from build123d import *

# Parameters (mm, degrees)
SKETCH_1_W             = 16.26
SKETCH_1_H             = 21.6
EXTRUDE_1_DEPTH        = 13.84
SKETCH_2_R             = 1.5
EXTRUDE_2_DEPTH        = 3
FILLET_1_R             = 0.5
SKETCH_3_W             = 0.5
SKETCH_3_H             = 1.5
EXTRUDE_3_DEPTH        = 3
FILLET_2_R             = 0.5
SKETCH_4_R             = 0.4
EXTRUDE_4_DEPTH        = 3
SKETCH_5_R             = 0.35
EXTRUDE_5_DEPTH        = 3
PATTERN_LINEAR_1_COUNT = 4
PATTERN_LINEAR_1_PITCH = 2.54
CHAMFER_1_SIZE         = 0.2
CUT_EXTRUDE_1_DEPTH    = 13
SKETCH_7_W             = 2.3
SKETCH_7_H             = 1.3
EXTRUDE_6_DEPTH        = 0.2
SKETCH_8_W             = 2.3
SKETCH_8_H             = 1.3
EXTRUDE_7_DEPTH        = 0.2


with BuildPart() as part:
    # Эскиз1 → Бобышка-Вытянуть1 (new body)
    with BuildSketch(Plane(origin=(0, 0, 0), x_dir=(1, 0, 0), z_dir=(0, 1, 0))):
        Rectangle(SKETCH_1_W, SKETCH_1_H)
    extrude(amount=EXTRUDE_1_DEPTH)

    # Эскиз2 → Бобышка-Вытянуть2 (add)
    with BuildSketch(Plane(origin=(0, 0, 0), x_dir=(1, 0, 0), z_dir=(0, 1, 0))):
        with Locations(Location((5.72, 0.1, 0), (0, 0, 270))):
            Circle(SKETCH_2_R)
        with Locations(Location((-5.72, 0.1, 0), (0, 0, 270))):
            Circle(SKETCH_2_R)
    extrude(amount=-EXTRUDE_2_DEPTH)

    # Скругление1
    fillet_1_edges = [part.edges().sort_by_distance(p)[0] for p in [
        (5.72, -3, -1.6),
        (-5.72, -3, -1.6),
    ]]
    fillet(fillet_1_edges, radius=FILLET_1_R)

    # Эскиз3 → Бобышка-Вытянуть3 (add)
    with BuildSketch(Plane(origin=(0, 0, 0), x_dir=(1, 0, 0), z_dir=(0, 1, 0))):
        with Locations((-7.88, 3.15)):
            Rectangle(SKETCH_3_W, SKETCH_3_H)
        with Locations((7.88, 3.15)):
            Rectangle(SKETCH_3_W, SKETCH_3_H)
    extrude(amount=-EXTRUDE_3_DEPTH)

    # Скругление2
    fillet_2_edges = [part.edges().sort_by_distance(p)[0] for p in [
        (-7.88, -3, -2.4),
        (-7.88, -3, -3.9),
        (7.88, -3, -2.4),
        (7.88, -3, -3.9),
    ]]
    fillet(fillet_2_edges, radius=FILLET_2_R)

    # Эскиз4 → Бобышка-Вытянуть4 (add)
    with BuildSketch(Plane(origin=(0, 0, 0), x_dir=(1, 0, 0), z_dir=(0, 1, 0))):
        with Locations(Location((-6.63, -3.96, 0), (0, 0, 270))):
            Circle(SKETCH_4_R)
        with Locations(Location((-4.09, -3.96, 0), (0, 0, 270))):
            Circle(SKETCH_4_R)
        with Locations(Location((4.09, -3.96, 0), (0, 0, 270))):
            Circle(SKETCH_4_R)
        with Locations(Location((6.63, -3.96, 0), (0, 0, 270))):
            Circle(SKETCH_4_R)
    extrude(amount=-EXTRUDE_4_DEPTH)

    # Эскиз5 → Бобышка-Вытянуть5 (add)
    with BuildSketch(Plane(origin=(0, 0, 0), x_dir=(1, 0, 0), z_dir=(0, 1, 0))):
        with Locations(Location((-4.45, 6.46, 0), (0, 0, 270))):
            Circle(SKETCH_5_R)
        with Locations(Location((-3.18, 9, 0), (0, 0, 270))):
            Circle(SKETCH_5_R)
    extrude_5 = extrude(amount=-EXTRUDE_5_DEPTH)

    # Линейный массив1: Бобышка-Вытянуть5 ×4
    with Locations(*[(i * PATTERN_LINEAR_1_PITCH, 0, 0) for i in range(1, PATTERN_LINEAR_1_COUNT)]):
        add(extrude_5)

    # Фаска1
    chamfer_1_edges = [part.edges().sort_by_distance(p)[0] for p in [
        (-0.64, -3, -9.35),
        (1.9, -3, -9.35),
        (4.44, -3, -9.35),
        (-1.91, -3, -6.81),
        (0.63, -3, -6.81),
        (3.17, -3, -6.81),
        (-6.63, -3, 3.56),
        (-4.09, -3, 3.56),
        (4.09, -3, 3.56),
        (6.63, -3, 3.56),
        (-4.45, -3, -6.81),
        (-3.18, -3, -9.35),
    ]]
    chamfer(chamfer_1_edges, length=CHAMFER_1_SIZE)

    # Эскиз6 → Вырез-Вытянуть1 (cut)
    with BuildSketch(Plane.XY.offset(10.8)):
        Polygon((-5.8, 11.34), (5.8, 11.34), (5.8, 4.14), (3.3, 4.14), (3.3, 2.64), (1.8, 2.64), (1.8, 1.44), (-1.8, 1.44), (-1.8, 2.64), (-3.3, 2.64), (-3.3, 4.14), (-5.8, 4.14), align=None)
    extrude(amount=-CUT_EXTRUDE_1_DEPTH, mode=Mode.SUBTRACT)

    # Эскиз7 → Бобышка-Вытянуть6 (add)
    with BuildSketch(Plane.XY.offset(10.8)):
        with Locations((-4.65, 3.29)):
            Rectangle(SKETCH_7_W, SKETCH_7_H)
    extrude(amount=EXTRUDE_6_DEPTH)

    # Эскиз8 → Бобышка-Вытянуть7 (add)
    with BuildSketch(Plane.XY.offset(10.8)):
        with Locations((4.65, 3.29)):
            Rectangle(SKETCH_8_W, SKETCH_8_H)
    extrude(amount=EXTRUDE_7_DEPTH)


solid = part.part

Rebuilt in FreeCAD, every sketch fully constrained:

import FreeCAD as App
import Part
import Sketcher
from FreeCAD import Vector


def edges_at(feature, points):
    """Names of the edges that pass closest to the given points."""
    edges = feature.Shape.Edges
    near = lambda p: min(range(len(edges)), key=lambda i: edges[i].distToShape(Part.Vertex(*p))[0])
    return sorted({f"Edge{near(p) + 1}" for p in points})

doc = App.newDocument("Part")
body = doc.addObject("PartDesign::Body", "Body")

# Sketch on XZ plane
sketch1 = body.newObject("Sketcher::SketchObject", "Sketch")
sketch1.AttachmentSupport = (doc.getObject("XZ_Plane"), [""])
sketch1.MapMode = "FlatFace"
sketch1.addGeometry([
    Part.LineSegment(Vector(-8, -11, 0), Vector(-8, 11, 0)),
    Part.LineSegment(Vector(-8, 11, 0), Vector(8, 11, 0)),
    Part.LineSegment(Vector(8, 11, 0), Vector(8, -11, 0)),
    Part.LineSegment(Vector(8, -11, 0), Vector(-8, -11, 0)),
], False)
sketch1.addConstraint([
    Sketcher.Constraint("Coincident", 0, 2, 1, 1),
    Sketcher.Constraint("Coincident", 1, 2, 2, 1),
    Sketcher.Constraint("Coincident", 2, 2, 3, 1),
    Sketcher.Constraint("Coincident", 3, 2, 0, 1),
    Sketcher.Constraint("Vertical", 0),
    Sketcher.Constraint("Horizontal", 1),
    Sketcher.Constraint("Vertical", 2),
    Sketcher.Constraint("Horizontal", 3),
    Sketcher.Constraint("Symmetric", 0, 2, 2, 2, -1, 1),
    Sketcher.Constraint("DistanceY", 0, 1, 0, 2, 21.6),
    Sketcher.Constraint("DistanceX", 1, 1, 1, 2, 16.26),
])
pad1 = body.newObject("PartDesign::Pad", "Pad")
pad1.Profile = sketch1
pad1.Length = 13.84
pad1.Reversed = True

# Sketch on XZ plane
sketch2 = body.newObject("Sketcher::SketchObject", "Sketch001")
sketch2.AttachmentSupport = (doc.getObject("XZ_Plane"), [""])
sketch2.MapMode = "FlatFace"
sketch2.addGeometry([
    Part.Circle(Vector(5.7, -0.1, 0), Vector(0, 0, 1), 1.5),
    Part.Circle(Vector(-5.7, -0.1, 0), Vector(0, 0, 1), 1.5),
], False)
sketch2.addConstraint([
    Sketcher.Constraint("Equal", 0, 1),
    Sketcher.Constraint("Symmetric", 0, 3, 1, 3, -2),
    Sketcher.Constraint("Diameter", 0, 3.0),
    Sketcher.Constraint("DistanceY", 0, 3, -1, 1, 0.1),
    Sketcher.Constraint("DistanceX", -1, 1, 0, 3, 5.72),
])
pad2 = body.newObject("PartDesign::Pad", "Pad001")
pad2.Profile = sketch2
pad2.Length = 3
doc.recompute()

fillet = body.newObject("PartDesign::Fillet", "Fillet")
fillet.Base = (pad2, edges_at(pad2, [(5.72, -3, -1.6), (-5.72, -3, -1.6)]))
fillet.Radius = 0.5

# Sketch on XZ plane
sketch3 = body.newObject("Sketcher::SketchObject", "Sketch002")
sketch3.AttachmentSupport = (doc.getObject("XZ_Plane"), [""])
sketch3.MapMode = "FlatFace"
sketch3.addGeometry([
    Part.LineSegment(Vector(-8.1, -3.9, 0), Vector(-8.1, -2.4, 0)),  # 0
    Part.LineSegment(Vector(-8.1, -2.4, 0), Vector(-7.6, -2.4, 0)),  # 1
    Part.LineSegment(Vector(-7.6, -2.4, 0), Vector(-7.6, -3.9, 0)),  # 2
    Part.LineSegment(Vector(-7.6, -3.9, 0), Vector(-8.1, -3.9, 0)),  # 3
    Part.LineSegment(Vector(7.6, -3.9, 0), Vector(7.6, -2.4, 0)),  # 4
    Part.LineSegment(Vector(7.6, -2.4, 0), Vector(8.1, -2.4, 0)),  # 5
    Part.LineSegment(Vector(8.1, -2.4, 0), Vector(8.1, -3.9, 0)),  # 6
    Part.LineSegment(Vector(8.1, -3.9, 0), Vector(7.6, -3.9, 0)),  # 7
], False)
sketch3.addConstraint([
    Sketcher.Constraint("Coincident", 0, 2, 1, 1),
    Sketcher.Constraint("Coincident", 1, 2, 2, 1),
    Sketcher.Constraint("Coincident", 2, 2, 3, 1),
    Sketcher.Constraint("Coincident", 3, 2, 0, 1),
    Sketcher.Constraint("Coincident", 4, 2, 5, 1),
    Sketcher.Constraint("Coincident", 5, 2, 6, 1),
    Sketcher.Constraint("Coincident", 6, 2, 7, 1),
    Sketcher.Constraint("Coincident", 7, 2, 4, 1),
    Sketcher.Constraint("Vertical", 0),
    Sketcher.Constraint("Horizontal", 1),
    Sketcher.Constraint("Vertical", 2),
    Sketcher.Constraint("Horizontal", 3),
    Sketcher.Constraint("Vertical", 4),
    Sketcher.Constraint("Horizontal", 5),
    Sketcher.Constraint("Vertical", 6),
    Sketcher.Constraint("Horizontal", 7),
    Sketcher.Constraint("Symmetric", 1, 2, 4, 2, -2),
    Sketcher.Constraint("Symmetric", 3, 2, 6, 2, -2),
    Sketcher.Constraint("DistanceX", 1, 1, 1, 2, 0.5),
    Sketcher.Constraint("DistanceY", 0, 1, 0, 2, 1.5),
    Sketcher.Constraint("DistanceY", 0, 2, -1, 1, 2.4),
    Sketcher.Constraint("DistanceX", 0, 2, -1, 1, 8.13),
])
pad3 = body.newObject("PartDesign::Pad", "Pad002")
pad3.Profile = sketch3
pad3.Length = 3
doc.recompute()

fillet2 = body.newObject("PartDesign::Fillet", "Fillet001")
fillet2.Base = (pad3, edges_at(pad3, [
    (-7.88, -3, -2.4),
    (-7.88, -3, -3.9),
    (7.88, -3, -2.4),
    (7.88, -3, -3.9),
]))
fillet2.Radius = 0.5

# Sketch on XZ plane
sketch4 = body.newObject("Sketcher::SketchObject", "Sketch003")
sketch4.AttachmentSupport = (doc.getObject("XZ_Plane"), [""])
sketch4.MapMode = "FlatFace"
sketch4.addGeometry([
    Part.Circle(Vector(-6.63, 3.96, 0), Vector(0, 0, 1), 0.4),
    Part.Circle(Vector(-4.09, 3.96, 0), Vector(0, 0, 1), 0.4),
    Part.Circle(Vector(4.09, 3.96, 0), Vector(0, 0, 1), 0.4),
    Part.Circle(Vector(6.63, 3.96, 0), Vector(0, 0, 1), 0.4),
], False)
sketch4.addConstraint([
    Sketcher.Constraint("Equal", 0, 1),
    Sketcher.Constraint("Equal", 1, 2),
    Sketcher.Constraint("Equal", 2, 3),
    Sketcher.Constraint("Symmetric", 1, 3, 2, 3, -2),
    Sketcher.Constraint("Symmetric", 0, 3, 3, 3, -2),
    Sketcher.Constraint("Horizontal", 0, 3, 1, 3),
    Sketcher.Constraint("Diameter", 0, 0.8),
    Sketcher.Constraint("DistanceX", 0, 3, -1, 1, 6.63),
    Sketcher.Constraint("DistanceY", -1, 1, 0, 3, 3.96),
    Sketcher.Constraint("DistanceX", 1, 3, -1, 1, 4.09),
])
pad4 = body.newObject("PartDesign::Pad", "Pad003")
pad4.Profile = sketch4
pad4.Length = 3

# Sketch on XZ plane
sketch5 = body.newObject("Sketcher::SketchObject", "Sketch004")
sketch5.AttachmentSupport = (doc.getObject("XZ_Plane"), [""])
sketch5.MapMode = "FlatFace"
sketch5.addGeometry([
    Part.Circle(Vector(-4.45, -6.46, 0), Vector(0, 0, 1), 0.35),
    Part.Circle(Vector(-3.18, -9, 0), Vector(0, 0, 1), 0.35),
], False)
sketch5.addConstraint([
    Sketcher.Constraint("Equal", 0, 1),
    Sketcher.Constraint("Diameter", 0, 0.7),
    Sketcher.Constraint("DistanceY", 1, 3, -1, 1, 9.0),
    Sketcher.Constraint("DistanceX", 0, 3, -1, 1, 4.45),
    Sketcher.Constraint("DistanceY", 0, 3, -1, 1, 6.46),
    Sketcher.Constraint("DistanceX", 1, 3, -1, 1, 3.18),
])
pad5 = body.newObject("PartDesign::Pad", "Pad004")
pad5.Profile = sketch5
pad5.Length = 3
doc.recompute()

linearpattern = body.newObject("PartDesign::LinearPattern", "LinearPattern")
linearpattern.Originals = [pad5]
linearpattern.Direction = (doc.getObject("X_Axis"), [""])
linearpattern.Mode = "offset"
linearpattern.Offset = 2.54
linearpattern.Occurrences = 4
body.Tip = linearpattern
doc.recompute()

chamfer = body.newObject("PartDesign::Chamfer", "Chamfer")
chamfer.Base = (linearpattern, edges_at(linearpattern, [
    (-0.64, -3, -9.35),
    (1.9, -3, -9.35),
    (4.44, -3, -9.35),
    (-1.91, -3, -6.81),
    (0.63, -3, -6.81),
    (3.17, -3, -6.81),
    (-6.63, -3, 3.56),
    (-4.09, -3, 3.56),
    (4.09, -3, 3.56),
    (6.63, -3, 3.56),
    (-4.45, -3, -6.81),
    (-3.18, -3, -9.35),
]))
chamfer.Size = 0.2

# Sketch on XY plane
sketch6 = body.newObject("Sketcher::SketchObject", "Sketch005")
sketch6.AttachmentSupport = (doc.getObject("XY_Plane"), [""])
sketch6.MapMode = "FlatFace"
sketch6.AttachmentOffset = App.Placement(Vector(0, 0, 10.8), App.Rotation())
sketch6.addGeometry([
    Part.LineSegment(Vector(5.8, 11.3, 0), Vector(-5.8, 11.3, 0)),  # 0
    Part.LineSegment(Vector(-5.8, 11.3, 0), Vector(-5.8, 4.1, 0)),  # 1
    Part.LineSegment(Vector(-5.8, 4.1, 0), Vector(-3.3, 4.1, 0)),  # 2
    Part.LineSegment(Vector(-3.3, 4.1, 0), Vector(-3.3, 2.6, 0)),  # 3
    Part.LineSegment(Vector(-3.3, 2.6, 0), Vector(-1.8, 2.6, 0)),  # 4
    Part.LineSegment(Vector(-1.8, 2.6, 0), Vector(-1.8, 1.4, 0)),  # 5
    Part.LineSegment(Vector(-1.8, 1.4, 0), Vector(1.8, 1.4, 0)),  # 6
    Part.LineSegment(Vector(1.8, 1.4, 0), Vector(1.8, 2.6, 0)),  # 7
    Part.LineSegment(Vector(1.8, 2.6, 0), Vector(3.3, 2.6, 0)),  # 8
    Part.LineSegment(Vector(3.3, 2.6, 0), Vector(3.3, 4.1, 0)),  # 9
    Part.LineSegment(Vector(3.3, 4.1, 0), Vector(5.8, 4.1, 0)),  # 10
    Part.LineSegment(Vector(5.8, 4.1, 0), Vector(5.8, 11.3, 0)),  # 11
], False)
sketch6.addConstraint([
    Sketcher.Constraint("Coincident", 0, 2, 1, 1),
    Sketcher.Constraint("Coincident", 1, 2, 2, 1),
    Sketcher.Constraint("Coincident", 2, 2, 3, 1),
    Sketcher.Constraint("Coincident", 3, 2, 4, 1),
    Sketcher.Constraint("Coincident", 4, 2, 5, 1),
    Sketcher.Constraint("Coincident", 5, 2, 6, 1),
    Sketcher.Constraint("Coincident", 6, 2, 7, 1),
    Sketcher.Constraint("Coincident", 7, 2, 8, 1),
    Sketcher.Constraint("Coincident", 8, 2, 9, 1),
    Sketcher.Constraint("Coincident", 9, 2, 10, 1),
    Sketcher.Constraint("Coincident", 10, 2, 11, 1),
    Sketcher.Constraint("Coincident", 11, 2, 0, 1),
    Sketcher.Constraint("Horizontal", 0),
    Sketcher.Constraint("Vertical", 1),
    Sketcher.Constraint("Horizontal", 2),
    Sketcher.Constraint("Vertical", 3),
    Sketcher.Constraint("Horizontal", 4),
    Sketcher.Constraint("Vertical", 5),
    Sketcher.Constraint("Horizontal", 6),
    Sketcher.Constraint("Vertical", 7),
    Sketcher.Constraint("Horizontal", 8),
    Sketcher.Constraint("Vertical", 9),
    Sketcher.Constraint("Horizontal", 10),
    Sketcher.Constraint("Vertical", 11),
    Sketcher.Constraint("Symmetric", 4, 2, 7, 2, -2),
    Sketcher.Constraint("Symmetric", 2, 2, 9, 2, -2),
    Sketcher.Constraint("Equal", 2, 10),
    Sketcher.Constraint("Equal", 8, 3),
    Sketcher.Constraint("DistanceX", 0, 2, 0, 1, 11.6),
    Sketcher.Constraint("DistanceX", 2, 1, 2, 2, 2.5),
    Sketcher.Constraint("DistanceX", 4, 1, 4, 2, 1.5),
    Sketcher.Constraint("DistanceY", 1, 2, 1, 1, 7.2),
    Sketcher.Constraint("DistanceY", 5, 2, 5, 1, 1.2),
    Sketcher.Constraint("DistanceY", -1, 1, 0, 2, 11.34),
])
pocket1 = body.newObject("PartDesign::Pocket", "Pocket")
pocket1.Profile = sketch6
pocket1.Length = 13

# Sketch on XY plane
sketch7 = body.newObject("Sketcher::SketchObject", "Sketch006")
sketch7.AttachmentSupport = (doc.getObject("XY_Plane"), [""])
sketch7.MapMode = "FlatFace"
sketch7.AttachmentOffset = App.Placement(Vector(0, 0, 10.8), App.Rotation())
sketch7.addGeometry([
    Part.LineSegment(Vector(-5.8, 3.9, 0), Vector(-5.8, 2.6, 0)),
    Part.LineSegment(Vector(-5.8, 2.6, 0), Vector(-3.5, 2.6, 0)),
    Part.LineSegment(Vector(-3.5, 2.6, 0), Vector(-3.5, 3.9, 0)),
    Part.LineSegment(Vector(-3.5, 3.9, 0), Vector(-5.8, 3.9, 0)),
], False)
sketch7.addConstraint([
    Sketcher.Constraint("Coincident", 0, 2, 1, 1),
    Sketcher.Constraint("Coincident", 1, 2, 2, 1),
    Sketcher.Constraint("Coincident", 2, 2, 3, 1),
    Sketcher.Constraint("Coincident", 3, 2, 0, 1),
    Sketcher.Constraint("Vertical", 0),
    Sketcher.Constraint("Horizontal", 1),
    Sketcher.Constraint("Vertical", 2),
    Sketcher.Constraint("Horizontal", 3),
    Sketcher.Constraint("DistanceX", 1, 1, 1, 2, 2.3),
    Sketcher.Constraint("DistanceY", 0, 2, 0, 1, 1.3),
    Sketcher.Constraint("DistanceX", 0, 2, -1, 1, 5.8),
    Sketcher.Constraint("DistanceY", -1, 1, 0, 2, 2.64),
])
pad6 = body.newObject("PartDesign::Pad", "Pad005")
pad6.Profile = sketch7
pad6.Length = 0.2

# Sketch on XY plane
sketch8 = body.newObject("Sketcher::SketchObject", "Sketch007")
sketch8.AttachmentSupport = (doc.getObject("XY_Plane"), [""])
sketch8.MapMode = "FlatFace"
sketch8.AttachmentOffset = App.Placement(Vector(0, 0, 10.8), App.Rotation())
sketch8.addGeometry([
    Part.LineSegment(Vector(3.5, 3.9, 0), Vector(3.5, 2.6, 0)),
    Part.LineSegment(Vector(3.5, 2.6, 0), Vector(5.8, 2.6, 0)),
    Part.LineSegment(Vector(5.8, 2.6, 0), Vector(5.8, 3.9, 0)),
    Part.LineSegment(Vector(5.8, 3.9, 0), Vector(3.5, 3.9, 0)),
], False)
sketch8.addConstraint([
    Sketcher.Constraint("Coincident", 0, 2, 1, 1),
    Sketcher.Constraint("Coincident", 1, 2, 2, 1),
    Sketcher.Constraint("Coincident", 2, 2, 3, 1),
    Sketcher.Constraint("Coincident", 3, 2, 0, 1),
    Sketcher.Constraint("Vertical", 0),
    Sketcher.Constraint("Horizontal", 1),
    Sketcher.Constraint("Vertical", 2),
    Sketcher.Constraint("Horizontal", 3),
    Sketcher.Constraint("DistanceX", 1, 1, 1, 2, 2.3),
    Sketcher.Constraint("DistanceY", 0, 2, 0, 1, 1.3),
    Sketcher.Constraint("DistanceX", -1, 1, 0, 2, 3.5),
    Sketcher.Constraint("DistanceY", -1, 1, 0, 2, 2.64),
])
pad7 = body.newObject("PartDesign::Pad", "Pad006")
pad7.Profile = sketch8
pad7.Length = 0.2

doc.recompute()
